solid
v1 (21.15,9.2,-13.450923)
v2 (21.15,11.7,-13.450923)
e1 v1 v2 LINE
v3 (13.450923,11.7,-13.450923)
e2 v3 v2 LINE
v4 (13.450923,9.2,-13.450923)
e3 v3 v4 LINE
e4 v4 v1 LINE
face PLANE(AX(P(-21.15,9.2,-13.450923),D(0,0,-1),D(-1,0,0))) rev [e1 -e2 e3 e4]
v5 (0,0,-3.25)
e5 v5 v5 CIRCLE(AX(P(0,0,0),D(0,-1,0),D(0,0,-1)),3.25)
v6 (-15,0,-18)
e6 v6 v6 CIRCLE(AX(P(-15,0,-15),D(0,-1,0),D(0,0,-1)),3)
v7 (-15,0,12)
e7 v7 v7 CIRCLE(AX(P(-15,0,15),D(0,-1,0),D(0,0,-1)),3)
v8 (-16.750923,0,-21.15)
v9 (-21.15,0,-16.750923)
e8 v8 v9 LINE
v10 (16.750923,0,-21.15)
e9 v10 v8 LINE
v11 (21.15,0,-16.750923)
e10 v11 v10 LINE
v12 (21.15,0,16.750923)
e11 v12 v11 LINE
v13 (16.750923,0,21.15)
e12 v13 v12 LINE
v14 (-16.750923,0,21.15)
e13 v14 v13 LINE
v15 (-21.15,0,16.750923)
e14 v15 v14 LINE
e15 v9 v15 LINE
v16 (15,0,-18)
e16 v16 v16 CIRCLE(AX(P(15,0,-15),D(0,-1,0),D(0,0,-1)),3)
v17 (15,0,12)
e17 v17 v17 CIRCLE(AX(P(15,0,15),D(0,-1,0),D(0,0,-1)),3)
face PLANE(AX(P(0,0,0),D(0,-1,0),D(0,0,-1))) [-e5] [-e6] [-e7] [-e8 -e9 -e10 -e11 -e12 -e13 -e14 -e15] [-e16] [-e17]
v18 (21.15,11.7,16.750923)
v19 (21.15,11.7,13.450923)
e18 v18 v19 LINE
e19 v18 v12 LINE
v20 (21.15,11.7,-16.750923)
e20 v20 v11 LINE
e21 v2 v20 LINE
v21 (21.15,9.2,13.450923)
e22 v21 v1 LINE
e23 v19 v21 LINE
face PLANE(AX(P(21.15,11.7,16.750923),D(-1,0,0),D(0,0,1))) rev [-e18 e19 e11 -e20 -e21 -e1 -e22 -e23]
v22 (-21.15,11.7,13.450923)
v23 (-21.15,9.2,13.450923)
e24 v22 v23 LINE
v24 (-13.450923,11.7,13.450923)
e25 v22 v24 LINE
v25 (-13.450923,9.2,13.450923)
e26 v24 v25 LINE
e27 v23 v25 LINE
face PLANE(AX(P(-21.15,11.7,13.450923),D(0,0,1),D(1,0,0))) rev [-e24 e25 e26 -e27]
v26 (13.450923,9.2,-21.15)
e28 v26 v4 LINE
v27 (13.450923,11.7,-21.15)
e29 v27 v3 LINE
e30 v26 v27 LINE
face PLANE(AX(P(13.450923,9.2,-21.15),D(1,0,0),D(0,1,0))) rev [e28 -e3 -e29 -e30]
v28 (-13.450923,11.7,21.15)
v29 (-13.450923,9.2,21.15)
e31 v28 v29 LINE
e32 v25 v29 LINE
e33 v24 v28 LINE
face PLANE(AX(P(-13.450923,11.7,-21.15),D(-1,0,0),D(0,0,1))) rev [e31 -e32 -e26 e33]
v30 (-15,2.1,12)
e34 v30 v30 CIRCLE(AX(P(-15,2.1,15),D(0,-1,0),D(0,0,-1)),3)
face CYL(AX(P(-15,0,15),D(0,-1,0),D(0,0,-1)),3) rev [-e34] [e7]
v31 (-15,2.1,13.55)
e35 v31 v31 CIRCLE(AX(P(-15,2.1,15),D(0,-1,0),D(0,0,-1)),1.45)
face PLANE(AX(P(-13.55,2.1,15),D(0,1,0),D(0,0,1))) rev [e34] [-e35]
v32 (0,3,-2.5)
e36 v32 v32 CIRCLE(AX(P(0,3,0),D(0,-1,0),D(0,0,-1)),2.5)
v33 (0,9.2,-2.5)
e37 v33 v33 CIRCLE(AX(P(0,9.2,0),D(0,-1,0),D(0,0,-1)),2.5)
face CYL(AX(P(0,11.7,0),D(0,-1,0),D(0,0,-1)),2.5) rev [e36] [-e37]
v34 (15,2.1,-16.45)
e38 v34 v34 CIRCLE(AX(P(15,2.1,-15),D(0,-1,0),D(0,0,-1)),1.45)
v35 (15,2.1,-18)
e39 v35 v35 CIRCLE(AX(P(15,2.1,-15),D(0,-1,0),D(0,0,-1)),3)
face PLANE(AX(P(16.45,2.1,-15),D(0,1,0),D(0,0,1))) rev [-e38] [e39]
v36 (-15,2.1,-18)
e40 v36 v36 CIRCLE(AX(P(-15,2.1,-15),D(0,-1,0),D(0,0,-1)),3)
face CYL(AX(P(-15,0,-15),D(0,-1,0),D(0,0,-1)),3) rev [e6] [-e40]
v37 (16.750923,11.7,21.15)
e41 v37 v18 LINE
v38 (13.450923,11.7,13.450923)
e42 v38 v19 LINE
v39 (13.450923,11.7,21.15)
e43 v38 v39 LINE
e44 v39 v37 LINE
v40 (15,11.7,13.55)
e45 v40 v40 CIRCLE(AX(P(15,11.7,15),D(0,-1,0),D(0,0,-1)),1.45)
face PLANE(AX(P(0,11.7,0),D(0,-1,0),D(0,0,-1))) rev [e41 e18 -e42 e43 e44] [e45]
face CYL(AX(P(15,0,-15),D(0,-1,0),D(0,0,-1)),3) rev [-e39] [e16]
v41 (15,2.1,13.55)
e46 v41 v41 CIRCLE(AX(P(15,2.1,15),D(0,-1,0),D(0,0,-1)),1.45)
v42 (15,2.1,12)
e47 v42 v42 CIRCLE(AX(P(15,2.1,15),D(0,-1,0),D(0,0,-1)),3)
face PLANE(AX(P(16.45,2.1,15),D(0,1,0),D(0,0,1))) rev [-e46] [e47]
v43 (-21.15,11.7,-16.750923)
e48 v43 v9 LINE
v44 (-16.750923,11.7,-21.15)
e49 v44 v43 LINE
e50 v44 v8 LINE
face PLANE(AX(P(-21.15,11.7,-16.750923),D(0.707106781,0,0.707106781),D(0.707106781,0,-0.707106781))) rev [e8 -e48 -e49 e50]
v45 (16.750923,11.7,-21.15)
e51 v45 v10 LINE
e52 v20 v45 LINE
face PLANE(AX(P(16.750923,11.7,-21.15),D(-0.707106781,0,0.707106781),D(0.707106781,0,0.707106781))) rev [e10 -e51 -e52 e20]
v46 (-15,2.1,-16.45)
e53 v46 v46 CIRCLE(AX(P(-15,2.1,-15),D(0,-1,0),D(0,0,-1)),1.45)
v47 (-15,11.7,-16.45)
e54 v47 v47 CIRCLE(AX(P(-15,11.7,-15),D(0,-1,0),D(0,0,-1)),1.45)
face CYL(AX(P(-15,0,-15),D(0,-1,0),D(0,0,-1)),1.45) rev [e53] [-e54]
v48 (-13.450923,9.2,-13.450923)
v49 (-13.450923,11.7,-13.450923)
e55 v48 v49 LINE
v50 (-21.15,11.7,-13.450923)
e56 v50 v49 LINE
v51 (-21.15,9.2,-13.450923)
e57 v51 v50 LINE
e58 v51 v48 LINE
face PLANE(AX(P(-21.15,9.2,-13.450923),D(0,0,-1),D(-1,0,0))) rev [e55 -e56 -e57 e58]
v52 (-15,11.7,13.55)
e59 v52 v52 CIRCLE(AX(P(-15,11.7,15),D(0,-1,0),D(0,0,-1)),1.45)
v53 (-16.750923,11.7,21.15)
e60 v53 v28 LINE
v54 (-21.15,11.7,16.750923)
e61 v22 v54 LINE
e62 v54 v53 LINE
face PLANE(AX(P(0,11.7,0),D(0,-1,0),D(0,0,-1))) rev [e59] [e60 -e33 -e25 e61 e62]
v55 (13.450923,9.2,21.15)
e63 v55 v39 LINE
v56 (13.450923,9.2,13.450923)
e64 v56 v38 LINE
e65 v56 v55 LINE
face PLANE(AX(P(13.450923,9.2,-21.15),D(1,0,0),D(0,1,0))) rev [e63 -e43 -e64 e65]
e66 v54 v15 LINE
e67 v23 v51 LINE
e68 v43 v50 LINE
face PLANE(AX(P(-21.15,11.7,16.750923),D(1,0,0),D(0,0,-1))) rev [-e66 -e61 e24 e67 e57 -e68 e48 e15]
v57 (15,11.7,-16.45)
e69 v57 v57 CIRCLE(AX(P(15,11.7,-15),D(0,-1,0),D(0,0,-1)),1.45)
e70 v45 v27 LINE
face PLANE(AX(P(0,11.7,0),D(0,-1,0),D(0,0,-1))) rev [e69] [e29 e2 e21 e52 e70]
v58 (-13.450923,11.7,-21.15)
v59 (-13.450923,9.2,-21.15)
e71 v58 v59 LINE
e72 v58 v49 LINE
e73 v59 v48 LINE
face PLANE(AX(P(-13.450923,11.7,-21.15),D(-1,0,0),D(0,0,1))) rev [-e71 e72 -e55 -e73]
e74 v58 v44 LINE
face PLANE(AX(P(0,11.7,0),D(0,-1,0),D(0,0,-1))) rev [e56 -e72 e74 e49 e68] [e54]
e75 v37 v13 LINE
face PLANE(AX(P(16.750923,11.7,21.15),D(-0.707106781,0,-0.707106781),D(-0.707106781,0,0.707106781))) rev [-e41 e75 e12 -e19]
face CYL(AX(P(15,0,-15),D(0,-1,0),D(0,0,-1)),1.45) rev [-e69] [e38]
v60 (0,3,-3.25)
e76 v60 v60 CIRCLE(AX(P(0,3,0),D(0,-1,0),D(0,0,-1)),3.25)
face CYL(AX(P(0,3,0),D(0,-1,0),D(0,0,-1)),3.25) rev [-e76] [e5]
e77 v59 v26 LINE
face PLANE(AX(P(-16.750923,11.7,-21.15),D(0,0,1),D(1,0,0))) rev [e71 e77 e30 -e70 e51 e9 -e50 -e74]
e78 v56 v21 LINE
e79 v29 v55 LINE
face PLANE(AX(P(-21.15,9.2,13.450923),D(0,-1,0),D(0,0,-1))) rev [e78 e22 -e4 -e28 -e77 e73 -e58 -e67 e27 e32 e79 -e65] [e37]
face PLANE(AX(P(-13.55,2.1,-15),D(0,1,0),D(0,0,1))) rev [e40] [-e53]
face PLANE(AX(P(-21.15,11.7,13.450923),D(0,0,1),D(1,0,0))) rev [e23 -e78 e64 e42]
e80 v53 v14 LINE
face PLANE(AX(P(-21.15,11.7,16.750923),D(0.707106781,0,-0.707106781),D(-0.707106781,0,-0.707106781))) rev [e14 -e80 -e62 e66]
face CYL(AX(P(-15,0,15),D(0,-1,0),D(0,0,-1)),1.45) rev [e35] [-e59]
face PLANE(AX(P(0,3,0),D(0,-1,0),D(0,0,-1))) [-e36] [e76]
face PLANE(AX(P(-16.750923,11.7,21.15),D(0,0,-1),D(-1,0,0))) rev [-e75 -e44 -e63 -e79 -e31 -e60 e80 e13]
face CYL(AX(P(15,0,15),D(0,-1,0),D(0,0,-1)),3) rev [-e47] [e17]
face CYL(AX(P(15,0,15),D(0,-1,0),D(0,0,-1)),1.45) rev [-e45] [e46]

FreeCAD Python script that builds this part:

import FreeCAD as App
import Part
import Sketcher
from FreeCAD import Vector
Q = App.Units.Quantity

doc = App.newDocument("Part")
body = doc.addObject("PartDesign::Body", "Body")

sketch1 = doc.addObject("Sketcher::SketchObject", "Sketch")
body.addObject(sketch1)
sketch1.AttachmentSupport = (doc.XZ_Plane, [""])
sketch1.MapMode = "FlatFace"
sketch1.addGeometry([
    Part.LineSegment(Vector(-16.750923, -21.15, 0), Vector(-21.15, -16.750923, 0)),
    Part.LineSegment(Vector(-21.15, -16.750923, 0), Vector(-21.15, 16.750923, 0)),
    Part.LineSegment(Vector(-21.15, 16.750923, 0), Vector(-16.750923, 21.15, 0)),
    Part.LineSegment(Vector(-16.750923, 21.15, 0), Vector(16.750923, 21.15, 0)),
    Part.LineSegment(Vector(16.750923, 21.15, 0), Vector(21.15, 16.750923, 0)),
    Part.LineSegment(Vector(21.15, 16.750923, 0), Vector(21.15, -16.750923, 0)),
    Part.LineSegment(Vector(21.15, -16.750923, 0), Vector(16.750923, -21.15, 0)),
    Part.LineSegment(Vector(16.750923, -21.15, 0), Vector(-16.750923, -21.15, 0)),
], False)
sketch1.addConstraint([
    Sketcher.Constraint("Coincident", 0, 2, 1, 1),
    Sketcher.Constraint("Coincident", 1, 2, 2, 1),
    Sketcher.Constraint("Coincident", 2, 2, 3, 1),
    Sketcher.Constraint("Coincident", 3, 2, 4, 1),
    Sketcher.Constraint("Coincident", 4, 2, 5, 1),
    Sketcher.Constraint("Coincident", 5, 2, 6, 1),
    Sketcher.Constraint("Coincident", 6, 2, 7, 1),
    Sketcher.Constraint("Coincident", 7, 2, 0, 1),
    Sketcher.Constraint("Vertical", 1),
    Sketcher.Constraint("Horizontal", 3),
    Sketcher.Constraint("Vertical", 5),
    Sketcher.Constraint("Horizontal", 7),
    Sketcher.Constraint("Symmetric", 0, 2, 4, 2, -1, 1),
    Sketcher.Constraint("Symmetric", 2, 2, 6, 2, -1, 1),
    Sketcher.Constraint("Perpendicular", 0, 2),
    Sketcher.Constraint("Perpendicular", 2, 4),
    Sketcher.Constraint("Perpendicular", 4, 6),
    Sketcher.Constraint("Horizontal", 1, 2, 4, 2),
    Sketcher.Constraint("Vertical", 3, 2, 6, 2),
    Sketcher.Constraint("Equal", 7, 1),
    Sketcher.Constraint("DistanceX", 1, 2, 4, 2, Q("42.3 mm")),
    Sketcher.Constraint("DistanceX", 3, 1, 3, 2, Q("33.501847 mm")),
])
pad1 = doc.addObject("PartDesign::Pad", "Pad")
body.addObject(pad1)
pad1.Profile = sketch1
pad1.Length = 11.7
pad1.Reversed = True

sketch2 = doc.addObject("Sketcher::SketchObject", "Sketch001")
body.addObject(sketch2)
sketch2.AttachmentSupport = (doc.YZ_Plane, [""])
sketch2.MapMode = "FlatFace"
sketch2.AttachmentOffset = App.Placement(Vector(0, 0, 21.15), App.Rotation())
sketch2.addGeometry([
    Part.LineSegment(Vector(11.7, 13.450923, 0), Vector(9.2, 13.450923, 0)),
    Part.LineSegment(Vector(9.2, 13.450923, 0), Vector(9.2, -13.450923, 0)),
    Part.LineSegment(Vector(9.2, -13.450923, 0), Vector(11.7, -13.450923, 0)),
    Part.LineSegment(Vector(11.7, -13.450923, 0), Vector(11.7, 13.450923, 0)),
], False)
sketch2.addConstraint([
    Sketcher.Constraint("Coincident", 0, 2, 1, 1),
    Sketcher.Constraint("Coincident", 1, 2, 2, 1),
    Sketcher.Constraint("Coincident", 2, 2, 3, 1),
    Sketcher.Constraint("Coincident", 3, 2, 0, 1),
    Sketcher.Constraint("Horizontal", 0),
    Sketcher.Constraint("Vertical", 1),
    Sketcher.Constraint("Horizontal", 2),
    Sketcher.Constraint("Vertical", 3),
    Sketcher.Constraint("DistanceX", 0, 2, 0, 1, Q("2.5 mm")),
    Sketcher.Constraint("DistanceX", -1, 1, 0, 2, Q("9.2 mm")),
    Sketcher.Constraint("DistanceY", 1, 2, 1, 1, Q("26.901847 mm")),
    Sketcher.Constraint("DistanceY", -1, 1, 0, 2, Q("13.450923 mm")),
])
pocket1 = doc.addObject("PartDesign::Pocket", "Pocket")
body.addObject(pocket1)
pocket1.Profile = sketch2
pocket1.Type = "ThroughAll"

sketch3 = doc.addObject("Sketcher::SketchObject", "Sketch002")
body.addObject(sketch3)
sketch3.AttachmentSupport = (doc.XY_Plane, [""])
sketch3.MapMode = "FlatFace"
sketch3.AttachmentOffset = App.Placement(Vector(0, 0, 21.15), App.Rotation())
sketch3.addGeometry([
    Part.LineSegment(Vector(-13.450923, 11.7, 0), Vector(-13.450923, 9.2, 0)),
    Part.LineSegment(Vector(-13.450923, 9.2, 0), Vector(13.450923, 9.2, 0)),
    Part.LineSegment(Vector(13.450923, 9.2, 0), Vector(13.450923, 11.7, 0)),
    Part.LineSegment(Vector(13.450923, 11.7, 0), Vector(-13.450923, 11.7, 0)),
], False)
sketch3.addConstraint([
    Sketcher.Constraint("Coincident", 0, 2, 1, 1),
    Sketcher.Constraint("Coincident", 1, 2, 2, 1),
    Sketcher.Constraint("Coincident", 2, 2, 3, 1),
    Sketcher.Constraint("Coincident", 3, 2, 0, 1),
    Sketcher.Constraint("Vertical", 0),
    Sketcher.Constraint("Horizontal", 1),
    Sketcher.Constraint("Vertical", 2),
    Sketcher.Constraint("Horizontal", 3),
    Sketcher.Constraint("DistanceY", 0, 2, 0, 1, Q("2.5 mm")),
    Sketcher.Constraint("DistanceY", -1, 1, 0, 2, Q("9.2 mm")),
    Sketcher.Constraint("DistanceX", 1, 1, 1, 2, Q("26.901847 mm")),
    Sketcher.Constraint("DistanceX", 0, 2, -1, 1, Q("13.450923 mm")),
])
pocket2 = doc.addObject("PartDesign::Pocket", "Pocket001")
body.addObject(pocket2)
pocket2.Profile = sketch3
pocket2.Type = "ThroughAll"

sketch4 = doc.addObject("Sketcher::SketchObject", "Sketch003")
body.addObject(sketch4)
sketch4.AttachmentSupport = (doc.XZ_Plane, [""])
sketch4.MapMode = "FlatFace"
sketch4.addGeometry(Part.Circle(Vector(0, 0, 0), Vector(0, 0, 1), 3.25), False)
sketch4.addConstraint([
    Sketcher.Constraint("Coincident", 0, 3, -1, 1),
    Sketcher.Constraint("Diameter", 0, Q("6.5 mm")),
])
pocket3 = doc.addObject("PartDesign::Pocket", "Pocket002")
body.addObject(pocket3)
pocket3.Profile = sketch4
pocket3.Length = 3

sketch5 = doc.addObject("Sketcher::SketchObject", "Sketch004")
body.addObject(sketch5)
sketch5.AttachmentSupport = (doc.XZ_Plane, [""])
sketch5.MapMode = "FlatFace"
sketch5.AttachmentOffset = App.Placement(Vector(0, 0, -3), App.Rotation())
sketch5.addGeometry(Part.Circle(Vector(0, 0, 0), Vector(0, 0, 1), 2.5), False)
sketch5.addConstraint([
    Sketcher.Constraint("Coincident", 0, 3, -1, 1),
    Sketcher.Constraint("Diameter", 0, Q("5 mm")),
])
pocket4 = doc.addObject("PartDesign::Pocket", "Pocket003")
body.addObject(pocket4)
pocket4.Profile = sketch5
pocket4.Type = "ThroughAll"

sketch6 = doc.addObject("Sketcher::SketchObject", "Sketch005")
body.addObject(sketch6)
sketch6.AttachmentSupport = (doc.XZ_Plane, [""])
sketch6.MapMode = "FlatFace"
sketch6.addGeometry([
    Part.Circle(Vector(-15, 15, 0), Vector(0, 0, 1), 1.45),
    Part.Circle(Vector(15, 15, 0), Vector(0, 0, 1), 1.45),
    Part.Circle(Vector(15, -15, 0), Vector(0, 0, 1), 1.45),
    Part.Circle(Vector(-15, -15, 0), Vector(0, 0, 1), 1.45),
], False)
sketch6.addConstraint([
    Sketcher.Constraint("Equal", 0, 1),
    Sketcher.Constraint("Equal", 1, 2),
    Sketcher.Constraint("Equal", 2, 3),
    Sketcher.Constraint("Symmetric", 0, 3, 2, 3, -1, 1),
    Sketcher.Constraint("Symmetric", 1, 3, 3, 3, -1, 1),
    Sketcher.Constraint("Symmetric", 0, 3, 1, 3, -2),
    Sketcher.Constraint("Diameter", 0, Q("2.9 mm")),
    Sketcher.Constraint("DistanceX", 0, 3, -1, 1, Q("15 mm")),
    Sketcher.Constraint("DistanceY", -1, 1, 0, 3, Q("15 mm")),
])
doc.recompute()
hole = doc.addObject("PartDesign::Hole", "Hole")
body.addObject(hole)
hole.Profile = sketch6
hole.ThreadType = "None"
hole.Diameter = 2.9
hole.DepthType = "ThroughAll"
hole.HoleCutType = "Counterbore"
hole.HoleCutDiameter = 6
hole.HoleCutDepth = 2.1

doc.recompute()
